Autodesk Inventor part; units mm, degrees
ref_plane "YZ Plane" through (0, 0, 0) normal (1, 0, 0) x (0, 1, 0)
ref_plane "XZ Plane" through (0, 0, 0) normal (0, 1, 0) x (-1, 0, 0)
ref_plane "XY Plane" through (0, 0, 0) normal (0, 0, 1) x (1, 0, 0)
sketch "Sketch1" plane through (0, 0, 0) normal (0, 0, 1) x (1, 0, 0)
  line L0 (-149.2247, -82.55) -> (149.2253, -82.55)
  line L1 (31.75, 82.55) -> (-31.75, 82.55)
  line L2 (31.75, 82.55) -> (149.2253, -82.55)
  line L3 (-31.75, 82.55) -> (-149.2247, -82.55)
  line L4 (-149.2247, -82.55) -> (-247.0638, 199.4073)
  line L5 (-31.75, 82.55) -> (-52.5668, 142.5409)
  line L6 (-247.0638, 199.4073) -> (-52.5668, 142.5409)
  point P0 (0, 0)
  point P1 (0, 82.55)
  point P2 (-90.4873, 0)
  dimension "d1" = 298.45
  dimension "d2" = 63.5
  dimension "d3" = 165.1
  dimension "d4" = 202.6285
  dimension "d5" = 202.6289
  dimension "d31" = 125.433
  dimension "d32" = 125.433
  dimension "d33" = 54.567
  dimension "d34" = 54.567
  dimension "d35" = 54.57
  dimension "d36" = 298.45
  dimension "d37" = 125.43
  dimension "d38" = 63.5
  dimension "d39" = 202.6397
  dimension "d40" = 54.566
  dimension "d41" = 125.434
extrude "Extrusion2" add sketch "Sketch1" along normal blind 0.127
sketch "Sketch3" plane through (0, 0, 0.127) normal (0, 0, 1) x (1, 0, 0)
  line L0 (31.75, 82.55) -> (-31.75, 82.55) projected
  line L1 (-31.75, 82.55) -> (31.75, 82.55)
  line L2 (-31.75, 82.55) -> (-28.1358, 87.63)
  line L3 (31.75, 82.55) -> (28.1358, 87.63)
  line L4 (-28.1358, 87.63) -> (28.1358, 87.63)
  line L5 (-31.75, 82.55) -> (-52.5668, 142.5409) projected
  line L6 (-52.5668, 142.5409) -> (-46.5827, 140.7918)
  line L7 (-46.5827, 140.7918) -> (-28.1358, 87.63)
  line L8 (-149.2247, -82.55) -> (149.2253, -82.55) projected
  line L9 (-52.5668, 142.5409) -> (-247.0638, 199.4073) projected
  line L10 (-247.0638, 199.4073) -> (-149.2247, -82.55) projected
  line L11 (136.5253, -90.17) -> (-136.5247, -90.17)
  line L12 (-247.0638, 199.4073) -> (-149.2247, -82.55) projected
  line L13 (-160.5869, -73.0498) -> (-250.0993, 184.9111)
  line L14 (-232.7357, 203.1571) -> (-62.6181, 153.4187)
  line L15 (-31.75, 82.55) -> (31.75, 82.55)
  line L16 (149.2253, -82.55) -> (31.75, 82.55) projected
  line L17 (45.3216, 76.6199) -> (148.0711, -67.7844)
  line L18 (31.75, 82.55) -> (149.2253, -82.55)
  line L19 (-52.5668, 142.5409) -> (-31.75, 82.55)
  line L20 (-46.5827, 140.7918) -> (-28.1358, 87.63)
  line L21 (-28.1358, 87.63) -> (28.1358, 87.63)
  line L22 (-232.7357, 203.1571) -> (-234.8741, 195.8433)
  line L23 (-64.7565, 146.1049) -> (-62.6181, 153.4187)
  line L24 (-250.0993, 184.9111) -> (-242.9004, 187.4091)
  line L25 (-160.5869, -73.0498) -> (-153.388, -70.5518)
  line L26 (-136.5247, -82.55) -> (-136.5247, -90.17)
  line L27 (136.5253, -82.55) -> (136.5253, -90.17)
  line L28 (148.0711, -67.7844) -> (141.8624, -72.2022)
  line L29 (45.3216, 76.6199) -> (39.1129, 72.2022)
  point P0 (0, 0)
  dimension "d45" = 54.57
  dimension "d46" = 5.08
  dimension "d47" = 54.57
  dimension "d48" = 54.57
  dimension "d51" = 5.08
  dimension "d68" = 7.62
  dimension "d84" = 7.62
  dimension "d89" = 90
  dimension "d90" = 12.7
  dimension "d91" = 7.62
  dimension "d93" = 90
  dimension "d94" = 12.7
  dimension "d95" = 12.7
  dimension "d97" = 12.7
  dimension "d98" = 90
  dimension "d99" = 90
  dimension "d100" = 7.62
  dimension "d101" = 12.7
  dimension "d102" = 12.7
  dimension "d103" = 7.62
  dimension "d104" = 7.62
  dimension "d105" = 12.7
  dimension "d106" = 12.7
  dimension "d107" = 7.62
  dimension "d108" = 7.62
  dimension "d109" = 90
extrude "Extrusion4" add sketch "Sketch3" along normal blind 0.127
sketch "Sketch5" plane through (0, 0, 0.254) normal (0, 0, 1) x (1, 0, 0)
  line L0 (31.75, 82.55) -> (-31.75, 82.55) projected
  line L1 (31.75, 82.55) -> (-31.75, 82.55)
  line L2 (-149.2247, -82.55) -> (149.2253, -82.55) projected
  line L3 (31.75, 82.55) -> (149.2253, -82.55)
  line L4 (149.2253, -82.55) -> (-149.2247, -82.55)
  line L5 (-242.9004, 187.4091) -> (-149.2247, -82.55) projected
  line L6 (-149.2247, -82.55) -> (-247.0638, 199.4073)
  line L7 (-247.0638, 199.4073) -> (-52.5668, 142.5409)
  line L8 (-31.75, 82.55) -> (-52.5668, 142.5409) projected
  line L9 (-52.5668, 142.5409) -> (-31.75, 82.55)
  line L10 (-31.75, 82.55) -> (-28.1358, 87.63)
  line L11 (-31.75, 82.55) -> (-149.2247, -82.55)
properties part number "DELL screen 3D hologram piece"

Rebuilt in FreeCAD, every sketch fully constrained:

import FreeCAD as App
import Part
import Sketcher

V = App.Vector
Q = App.Units.Quantity


def add_polygon(sketch, points):
    """Adds a closed chain of lines whose ends are joined by coincident constraints."""
    first, n = sketch.GeometryCount, len(points)
    for a, b in zip(points, points[1:] + points[:1]):
        sketch.addGeometry(Part.LineSegment(App.Vector(*a, 0), App.Vector(*b, 0)), False)
    for i in range(n):
        sketch.addConstraint(Sketcher.Constraint("Coincident", first + i, 2, first + (i + 1) % n, 1))

doc = App.newDocument("Part")
body = doc.addObject("PartDesign::Body", "Body")

sketch1 = doc.addObject("Sketcher::SketchObject", "Sketch")
body.addObject(sketch1)
sketch1.AttachmentSupport = (doc.XY_Plane, [""])
sketch1.MapMode = "FlatFace"
add_polygon(sketch1, [(32, 83), (-32, 83), (-53, 143), (-247, 199), (-149, -83), (149, -83)])
sketch1.addConstraint([
    Sketcher.Constraint("Horizontal", 0),
    Sketcher.Constraint("Horizontal", 4),
    Sketcher.Constraint("Parallel", 1, 3),
    Sketcher.Constraint("DistanceX", 0, 2, 0, 1, Q("2.5 in")),
    Sketcher.Constraint("Distance", 1, Q("2.5 in")),
    Sketcher.Constraint("DistanceX", 4, 1, 4, 2, Q("11.75 in")),
    Sketcher.Constraint("DistanceY", 3, 2, 0, 2, Q("6.5 in")),
    Sketcher.Constraint("Distance", 3, Q("11.75 in")),
    Sketcher.Constraint("Distance", 2, Q("202.6398 mm")),
    Sketcher.Constraint("Distance", 5, Q("202.6289 mm")),
    Sketcher.Constraint("DistanceX", 0, 2, -1, 1, Q("1.25 in")),
    Sketcher.Constraint("DistanceY", -1, 1, 0, 2, Q("3.25 in")),
])
pad1 = doc.addObject("PartDesign::Pad", "Pad")
body.addObject(pad1)
pad1.Profile = sketch1
pad1.Length = Q("0.005 in")

sketch2 = doc.addObject("Sketcher::SketchObject", "Sketch001")
body.addObject(sketch2)
sketch2.AttachmentSupport = (doc.XY_Plane, [""])
sketch2.MapMode = "FlatFace"
sketch2.AttachmentOffset = App.Placement(V(0, 0, 0.005 * 25.4), App.Rotation())
add_polygon(sketch2, [(39.112884, 72.202189), (31.75, 82.55), (28.1358, 87.63), (-28.1358, 87.63), (-46.5827, 140.7918), (-52.5668, 142.5409), (-64.7565, 146.1049), (-62.6181, 153.4187), (-232.7357, 203.1571), (-234.874096, 195.843314), (-247.0638, 199.4073), (-242.9004, 187.4091), (-250.0993, 184.9111), (-160.5869, -73.0498), (-153.388064, -70.551822), (-149.2247, -82.55), (-136.5247, -82.55), (-136.5247, -90.17), (136.5253, -90.17), (136.5253, -82.55), (149.2253, -82.55), (141.8624, -72.2022), (148.0711, -67.7844), (45.3216, 76.6199)])
sketch2.addConstraint([
    Sketcher.Constraint("Horizontal", 2),
    Sketcher.Constraint("Horizontal", 15),
    Sketcher.Constraint("Vertical", 16),
    Sketcher.Constraint("Horizontal", 17),
    Sketcher.Constraint("Vertical", 18),
    Sketcher.Constraint("Horizontal", 19),
    Sketcher.Constraint("DistanceX", 15, 1, 15, 2, Q("0.5 in")),
    Sketcher.Constraint("DistanceX", 19, 1, 19, 2, Q("0.5 in")),
    Sketcher.Constraint("DistanceY", 16, 2, 16, 1, Q("0.3 in")),
    Sketcher.Constraint("DistanceY", 18, 1, 18, 2, Q("0.3 in")),
    Sketcher.Constraint("Distance", 0, Q("0.5 in")),
    Sketcher.Constraint("Distance", 5, Q("0.5 in")),
    Sketcher.Constraint("Distance", 6, Q("0.3 in")),
    Sketcher.Constraint("Distance", 8, Q("0.3 in")),
    Sketcher.Constraint("Distance", 9, Q("0.5 in")),
    Sketcher.Constraint("Distance", 10, Q("0.5 in")),
    Sketcher.Constraint("Distance", 11, Q("0.3 in")),
    Sketcher.Constraint("Distance", 13, Q("0.3 in")),
    Sketcher.Constraint("Distance", 14, Q("0.5 in")),
    Sketcher.Constraint("Distance", 20, Q("0.5 in")),
    Sketcher.Constraint("Distance", 21, Q("0.3 in")),
    Sketcher.Constraint("Distance", 23, Q("0.3 in")),
    Sketcher.Constraint("DistanceY", 0, 2, 1, 2, Q("0.2 in")),
    Sketcher.Constraint("DistanceY", 16, 2, 2, 2, Q("7 in")),
    Sketcher.Constraint("DistanceX", 17, 1, 17, 2, Q("10.75 in")),
    Sketcher.Constraint("Distance", 12, Q("10.75 in")),
    Sketcher.Constraint("DistanceX", -1, 1, 0, 2, Q("1.25 in")),
    Sketcher.Constraint("DistanceY", -1, 1, 0, 2, Q("3.25 in")),
    Sketcher.Constraint("DistanceY", 10, 2, 7, 2, Q("0.62 in")),
    Sketcher.Constraint("DistanceX", 8, 2, -1, 1, Q("9.247 in")),
    Sketcher.Constraint("DistanceX", 10, 2, -1, 1, Q("9.563 in")),
    Sketcher.Constraint("DistanceX", 14, 2, -1, 1, Q("5.875 in")),
    Sketcher.Constraint("DistanceX", 6, 2, 1, 2, Q("3.573 in")),
    Sketcher.Constraint("Distance", 3, Q("2.2154 in")),
    Sketcher.Constraint("DistanceX", 2, 2, 2, 1, Q("56.2716 mm")),
    Sketcher.Constraint("DistanceX", -1, 1, 1, 2, Q("1.1077 in")),
    Sketcher.Constraint("DistanceY", -1, 1, 6, 2, Q("6.0401 in")),
    Sketcher.Constraint("DistanceY", -1, 1, 7, 2, Q("7.9983 in")),
    Sketcher.Constraint("DistanceX", 13, 2, -1, 1, Q("6.0389 in")),
    Sketcher.Constraint("DistanceY", 20, 2, -1, 1, Q("2.8426 in")),
    Sketcher.Constraint("DistanceY", -1, 1, 23, 2, Q("2.8426 in")),
    Sketcher.Constraint("DistanceX", 4, 2, 3, 2, Q("0.2356 in")),
    Sketcher.Constraint("DistanceX", 5, 2, 4, 2, Q("0.4799 in")),
    Sketcher.Constraint("DistanceX", 5, 2, 6, 2, Q("0.0842 in")),
    Sketcher.Constraint("DistanceX", 8, 2, 7, 2, Q("0.0842 in")),
    Sketcher.Constraint("DistanceX", 11, 2, 9, 2, Q("0.1195 in")),
    Sketcher.Constraint("DistanceX", 1, 2, 22, 2, Q("0.6766 in")),
    Sketcher.Constraint("Distance", 22, Q("6.9775118 in")),
])
pad2 = doc.addObject("PartDesign::Pad", "Pad001")
body.addObject(pad2)
pad2.Profile = sketch2
pad2.Length = Q("0.005 in")

doc.recompute()
